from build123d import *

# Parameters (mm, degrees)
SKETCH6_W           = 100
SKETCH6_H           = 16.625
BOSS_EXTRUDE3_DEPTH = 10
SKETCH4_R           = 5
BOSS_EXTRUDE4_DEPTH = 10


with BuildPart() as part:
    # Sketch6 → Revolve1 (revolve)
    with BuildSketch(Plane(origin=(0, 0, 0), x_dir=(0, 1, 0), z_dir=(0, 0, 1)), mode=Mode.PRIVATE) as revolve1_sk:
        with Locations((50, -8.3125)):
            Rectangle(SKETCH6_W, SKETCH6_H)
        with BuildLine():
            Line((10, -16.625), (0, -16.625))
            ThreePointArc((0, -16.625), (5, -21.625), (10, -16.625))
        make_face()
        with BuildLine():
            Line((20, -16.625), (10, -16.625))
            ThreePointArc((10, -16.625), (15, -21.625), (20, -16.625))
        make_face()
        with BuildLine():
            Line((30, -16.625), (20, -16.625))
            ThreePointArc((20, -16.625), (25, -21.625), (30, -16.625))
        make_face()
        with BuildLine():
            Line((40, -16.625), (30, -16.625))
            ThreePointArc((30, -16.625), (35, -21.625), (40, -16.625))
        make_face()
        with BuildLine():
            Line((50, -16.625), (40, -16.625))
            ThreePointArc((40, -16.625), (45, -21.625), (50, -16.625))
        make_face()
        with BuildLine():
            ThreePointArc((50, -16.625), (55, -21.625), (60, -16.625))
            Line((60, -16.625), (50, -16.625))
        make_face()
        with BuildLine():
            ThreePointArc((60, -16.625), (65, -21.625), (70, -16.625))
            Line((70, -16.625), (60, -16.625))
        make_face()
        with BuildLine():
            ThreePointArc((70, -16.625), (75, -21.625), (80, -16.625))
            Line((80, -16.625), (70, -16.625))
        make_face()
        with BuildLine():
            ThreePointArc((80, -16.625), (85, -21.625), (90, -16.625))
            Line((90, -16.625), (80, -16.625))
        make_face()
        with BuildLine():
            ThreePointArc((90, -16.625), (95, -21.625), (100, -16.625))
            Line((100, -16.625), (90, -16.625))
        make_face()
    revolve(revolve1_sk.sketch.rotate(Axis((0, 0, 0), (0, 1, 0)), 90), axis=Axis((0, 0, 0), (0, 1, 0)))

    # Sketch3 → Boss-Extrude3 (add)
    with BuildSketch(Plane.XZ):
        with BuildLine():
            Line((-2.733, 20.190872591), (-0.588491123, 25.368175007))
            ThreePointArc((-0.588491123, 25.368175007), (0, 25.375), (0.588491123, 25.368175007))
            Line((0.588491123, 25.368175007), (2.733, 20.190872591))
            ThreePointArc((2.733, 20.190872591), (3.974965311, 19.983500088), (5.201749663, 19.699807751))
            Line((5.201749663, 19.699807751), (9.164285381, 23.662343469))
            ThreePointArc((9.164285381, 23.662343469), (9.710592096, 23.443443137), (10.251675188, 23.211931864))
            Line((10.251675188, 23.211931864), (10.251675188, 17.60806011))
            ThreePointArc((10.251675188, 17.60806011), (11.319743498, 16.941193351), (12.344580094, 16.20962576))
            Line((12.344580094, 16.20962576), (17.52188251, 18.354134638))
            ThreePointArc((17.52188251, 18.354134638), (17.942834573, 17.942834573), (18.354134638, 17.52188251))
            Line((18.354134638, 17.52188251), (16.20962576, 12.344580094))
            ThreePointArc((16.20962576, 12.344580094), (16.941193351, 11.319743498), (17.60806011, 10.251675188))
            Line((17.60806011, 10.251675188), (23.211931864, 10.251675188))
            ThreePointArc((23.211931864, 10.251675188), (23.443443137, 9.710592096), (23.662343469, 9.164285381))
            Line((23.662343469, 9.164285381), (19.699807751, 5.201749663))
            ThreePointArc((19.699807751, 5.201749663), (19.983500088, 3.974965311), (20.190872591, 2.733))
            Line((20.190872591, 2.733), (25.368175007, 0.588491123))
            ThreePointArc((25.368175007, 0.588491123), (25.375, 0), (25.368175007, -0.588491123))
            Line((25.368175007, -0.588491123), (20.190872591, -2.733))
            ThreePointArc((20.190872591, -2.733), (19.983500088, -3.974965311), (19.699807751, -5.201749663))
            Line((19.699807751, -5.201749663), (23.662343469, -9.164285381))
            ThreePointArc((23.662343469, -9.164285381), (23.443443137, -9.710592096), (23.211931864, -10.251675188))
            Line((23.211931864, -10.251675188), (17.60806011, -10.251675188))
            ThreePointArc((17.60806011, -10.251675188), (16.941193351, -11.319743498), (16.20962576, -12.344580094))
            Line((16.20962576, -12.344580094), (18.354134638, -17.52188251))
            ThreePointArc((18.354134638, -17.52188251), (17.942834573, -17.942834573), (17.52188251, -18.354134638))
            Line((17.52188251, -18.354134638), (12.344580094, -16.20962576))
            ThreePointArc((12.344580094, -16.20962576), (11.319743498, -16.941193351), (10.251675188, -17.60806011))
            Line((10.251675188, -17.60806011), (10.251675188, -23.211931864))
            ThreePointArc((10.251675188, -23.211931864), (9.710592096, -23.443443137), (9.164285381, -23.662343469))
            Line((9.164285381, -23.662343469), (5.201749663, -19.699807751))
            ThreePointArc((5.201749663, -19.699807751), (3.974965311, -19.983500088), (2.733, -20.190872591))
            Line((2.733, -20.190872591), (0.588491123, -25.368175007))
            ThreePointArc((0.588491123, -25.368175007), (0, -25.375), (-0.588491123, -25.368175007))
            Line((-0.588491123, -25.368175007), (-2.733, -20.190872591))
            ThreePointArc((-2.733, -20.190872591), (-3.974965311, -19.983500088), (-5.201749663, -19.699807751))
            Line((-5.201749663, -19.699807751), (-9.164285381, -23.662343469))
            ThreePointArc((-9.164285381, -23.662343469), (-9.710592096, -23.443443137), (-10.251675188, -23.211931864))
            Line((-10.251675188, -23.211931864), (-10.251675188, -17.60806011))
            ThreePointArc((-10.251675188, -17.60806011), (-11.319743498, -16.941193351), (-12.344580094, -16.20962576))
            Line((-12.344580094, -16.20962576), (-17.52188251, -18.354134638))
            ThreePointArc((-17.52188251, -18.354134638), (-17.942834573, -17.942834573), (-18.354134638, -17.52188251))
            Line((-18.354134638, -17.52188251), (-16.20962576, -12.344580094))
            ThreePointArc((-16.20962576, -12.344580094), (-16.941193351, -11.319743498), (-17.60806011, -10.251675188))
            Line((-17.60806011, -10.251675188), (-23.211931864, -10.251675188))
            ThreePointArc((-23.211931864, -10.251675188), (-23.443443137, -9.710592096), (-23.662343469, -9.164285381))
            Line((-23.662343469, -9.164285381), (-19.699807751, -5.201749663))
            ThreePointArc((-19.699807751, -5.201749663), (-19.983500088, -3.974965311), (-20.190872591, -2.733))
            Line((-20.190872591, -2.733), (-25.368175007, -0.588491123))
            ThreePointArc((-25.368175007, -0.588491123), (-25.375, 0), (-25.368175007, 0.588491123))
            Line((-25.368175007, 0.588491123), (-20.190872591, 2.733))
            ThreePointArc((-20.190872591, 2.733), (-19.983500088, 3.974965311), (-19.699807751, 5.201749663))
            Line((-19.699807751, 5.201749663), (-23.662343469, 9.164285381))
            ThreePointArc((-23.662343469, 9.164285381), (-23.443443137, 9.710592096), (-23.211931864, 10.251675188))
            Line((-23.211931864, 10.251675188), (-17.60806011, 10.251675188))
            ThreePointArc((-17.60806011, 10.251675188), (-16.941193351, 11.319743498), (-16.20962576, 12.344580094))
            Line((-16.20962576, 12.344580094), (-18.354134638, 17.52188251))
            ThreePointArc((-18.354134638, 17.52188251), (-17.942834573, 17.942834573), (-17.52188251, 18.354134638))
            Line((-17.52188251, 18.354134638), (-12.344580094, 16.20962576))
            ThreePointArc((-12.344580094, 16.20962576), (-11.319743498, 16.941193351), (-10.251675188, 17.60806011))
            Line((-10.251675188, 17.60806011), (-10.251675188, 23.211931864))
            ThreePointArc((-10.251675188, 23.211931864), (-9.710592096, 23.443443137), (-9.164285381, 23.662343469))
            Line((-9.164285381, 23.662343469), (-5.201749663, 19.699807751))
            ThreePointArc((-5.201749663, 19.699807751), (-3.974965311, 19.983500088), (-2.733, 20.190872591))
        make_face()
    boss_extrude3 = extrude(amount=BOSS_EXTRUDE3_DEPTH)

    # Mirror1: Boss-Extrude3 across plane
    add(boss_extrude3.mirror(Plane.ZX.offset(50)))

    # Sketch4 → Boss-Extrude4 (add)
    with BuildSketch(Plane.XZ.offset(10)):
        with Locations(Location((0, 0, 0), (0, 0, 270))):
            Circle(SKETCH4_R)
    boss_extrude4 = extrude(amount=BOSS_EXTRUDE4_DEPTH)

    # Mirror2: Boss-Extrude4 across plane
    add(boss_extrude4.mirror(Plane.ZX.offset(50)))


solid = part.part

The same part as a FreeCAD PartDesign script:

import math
import FreeCAD as App
import Part
import Sketcher
from FreeCAD import Vector
Q = App.Units.Quantity

doc = App.newDocument("Part")
body = doc.addObject("PartDesign::Body", "Body")

# Sketch on XY plane
sketch1 = doc.addObject("Sketcher::SketchObject", "Sketch")
body.addObject(sketch1)
sketch1.AttachmentSupport = (doc.XY_Plane, [""])
sketch1.MapMode = "FlatFace"
sketch1.addGeometry(Part.LineSegment(Vector(0, 0, 0), Vector(17, 0, 0)), False)
sketch1.addGeometry(Part.ArcOfCircle(Part.Circle(Vector(17, 5, 0), Vector(0, 0, 1), 5), math.radians(-90), math.radians(90)), False)
sketch1.addGeometry(Part.ArcOfCircle(Part.Circle(Vector(17, 15, 0), Vector(0, 0, 1), 5), math.radians(-90), math.radians(90)), False)
sketch1.addGeometry(Part.ArcOfCircle(Part.Circle(Vector(17, 25, 0), Vector(0, 0, 1), 5), math.radians(-90), math.radians(90)), False)
sketch1.addGeometry(Part.ArcOfCircle(Part.Circle(Vector(17, 35, 0), Vector(0, 0, 1), 5), math.radians(-90), math.radians(90)), False)
sketch1.addGeometry(Part.ArcOfCircle(Part.Circle(Vector(17, 45, 0), Vector(0, 0, 1), 5), math.radians(-90), math.radians(90)), False)
sketch1.addGeometry(Part.ArcOfCircle(Part.Circle(Vector(17, 55, 0), Vector(0, 0, 1), 5), math.radians(-90), math.radians(90)), False)
sketch1.addGeometry(Part.ArcOfCircle(Part.Circle(Vector(17, 65, 0), Vector(0, 0, 1), 5), math.radians(-90), math.radians(90)), False)
sketch1.addGeometry(Part.ArcOfCircle(Part.Circle(Vector(17, 75, 0), Vector(0, 0, 1), 5), math.radians(-90), math.radians(90)), False)
sketch1.addGeometry(Part.ArcOfCircle(Part.Circle(Vector(17, 85, 0), Vector(0, 0, 1), 5), math.radians(-90), math.radians(90)), False)
sketch1.addGeometry(Part.ArcOfCircle(Part.Circle(Vector(17, 95, 0), Vector(0, 0, 1), 5), math.radians(-90), math.radians(90)), False)
sketch1.addGeometry(Part.LineSegment(Vector(17, 100, 0), Vector(0, 100, 0)), False)
sketch1.addGeometry(Part.LineSegment(Vector(0, 100, 0), Vector(0, 0, 0)), False)
sketch1.addConstraint(Sketcher.Constraint("Tangent", 0, 2, 1, 1))
sketch1.addConstraint(Sketcher.Constraint("Tangent", 1, 2, 2, 1))
sketch1.addConstraint(Sketcher.Constraint("Tangent", 2, 2, 3, 1))
sketch1.addConstraint(Sketcher.Constraint("Tangent", 3, 2, 4, 1))
sketch1.addConstraint(Sketcher.Constraint("Tangent", 4, 2, 5, 1))
sketch1.addConstraint(Sketcher.Constraint("Tangent", 5, 2, 6, 1))
sketch1.addConstraint(Sketcher.Constraint("Tangent", 6, 2, 7, 1))
sketch1.addConstraint(Sketcher.Constraint("Tangent", 7, 2, 8, 1))
sketch1.addConstraint(Sketcher.Constraint("Tangent", 8, 2, 9, 1))
sketch1.addConstraint(Sketcher.Constraint("Tangent", 9, 2, 10, 1))
sketch1.addConstraint(Sketcher.Constraint("Tangent", 10, 2, 11, 1))
sketch1.addConstraint(Sketcher.Constraint("Coincident", 11, 2, 12, 1))
sketch1.addConstraint(Sketcher.Constraint("Coincident", 12, 2, 0, 1))
sketch1.addConstraint(Sketcher.Constraint("Horizontal", 0))
sketch1.addConstraint(Sketcher.Constraint("Horizontal", 11))
sketch1.addConstraint(Sketcher.Constraint("Vertical", 12))
sketch1.addConstraint(Sketcher.Constraint("Coincident", 12, 2, -1, 1))
sketch1.addConstraint(Sketcher.Constraint("Equal", 1, 2))
sketch1.addConstraint(Sketcher.Constraint("Equal", 2, 3))
sketch1.addConstraint(Sketcher.Constraint("Equal", 3, 4))
sketch1.addConstraint(Sketcher.Constraint("Equal", 4, 5))
sketch1.addConstraint(Sketcher.Constraint("Equal", 5, 6))
sketch1.addConstraint(Sketcher.Constraint("Equal", 6, 7))
sketch1.addConstraint(Sketcher.Constraint("Equal", 7, 8))
sketch1.addConstraint(Sketcher.Constraint("Equal", 8, 9))
sketch1.addConstraint(Sketcher.Constraint("Equal", 9, 10))
sketch1.addConstraint(Sketcher.Constraint("Vertical", 1, 3, 2, 3))
sketch1.addConstraint(Sketcher.Constraint("Vertical", 2, 3, 3, 3))
sketch1.addConstraint(Sketcher.Constraint("Vertical", 3, 3, 4, 3))
sketch1.addConstraint(Sketcher.Constraint("Vertical", 4, 3, 5, 3))
sketch1.addConstraint(Sketcher.Constraint("Vertical", 5, 3, 6, 3))
sketch1.addConstraint(Sketcher.Constraint("Vertical", 6, 3, 7, 3))
sketch1.addConstraint(Sketcher.Constraint("Vertical", 7, 3, 8, 3))
sketch1.addConstraint(Sketcher.Constraint("Vertical", 8, 3, 9, 3))
sketch1.addConstraint(Sketcher.Constraint("Vertical", 9, 3, 10, 3))
sketch1.addConstraint(Sketcher.Constraint("Radius", 1, Q("5 mm")))
sketch1.addConstraint(Sketcher.Constraint("DistanceX", 0, 1, 0, 2, Q("16.625 mm")))
revolution = doc.addObject("PartDesign::Revolution", "Revolution")
body.addObject(revolution)
revolution.Profile = sketch1
revolution.ReferenceAxis = (sketch1, ["V_Axis"])
revolution.Angle = 360

# Sketch on XZ plane
sketch2 = doc.addObject("Sketcher::SketchObject", "Sketch001")
body.addObject(sketch2)
sketch2.AttachmentSupport = (doc.XZ_Plane, [""])
sketch2.MapMode = "FlatFace"
sketch2.addGeometry(Part.LineSegment(Vector(-0.588491, 25.368175, 0), Vector(-2.733, 20.190873, 0)), False)
sketch2.addGeometry(Part.ArcOfCircle(Part.Circle(Vector(0, 0, 0), Vector(0, 0, 1), 20.375), math.radians(97.708602), math.radians(104.791398)), False)
sketch2.addGeometry(Part.LineSegment(Vector(-5.20175, 19.699808, 0), Vector(-9.164285, 23.662343, 0)), False)
sketch2.addGeometry(Part.ArcOfCircle(Part.Circle(Vector(0.000001, -0.000002, 0), Vector(0, 0, 1), 25.375002), math.radians(111.17109), math.radians(113.828909)), False)
sketch2.addGeometry(Part.LineSegment(Vector(-10.251675, 23.211932, 0), Vector(-10.251675, 17.60806, 0)), False)
sketch2.addGeometry(Part.ArcOfCircle(Part.Circle(Vector(0, 0, 0), Vector(0, 0, 1), 20.375), math.radians(120.208602), math.radians(127.291398)), False)
sketch2.addGeometry(Part.LineSegment(Vector(-12.34458, 16.209626, 0), Vector(-17.521883, 18.354135, 0)), False)
sketch2.addGeometry(Part.ArcOfCircle(Part.Circle(Vector(-0.000001, 0.000001, 0), Vector(0, 0, 1), 25.374998), math.radians(133.67109), math.radians(136.32891)), False)
sketch2.addGeometry(Part.LineSegment(Vector(-18.354135, 17.521883, 0), Vector(-16.209626, 12.34458, 0)), False)
sketch2.addGeometry(Part.ArcOfCircle(Part.Circle(Vector(0, 0, 0), Vector(0, 0, 1), 20.375), math.radians(142.708602), math.radians(149.791398)), False)
sketch2.addGeometry(Part.LineSegment(Vector(-17.60806, 10.251675, 0), Vector(-23.211932, 10.251675, 0)), False)
sketch2.addGeometry(Part.ArcOfCircle(Part.Circle(Vector(0.000002, -0.000001, 0), Vector(0, 0, 1), 25.375002), math.radians(156.171091), math.radians(158.82891)), False)
sketch2.addGeometry(Part.LineSegment(Vector(-23.662343, 9.164285, 0), Vector(-19.699808, 5.20175, 0)), False)
sketch2.addGeometry(Part.ArcOfCircle(Part.Circle(Vector(0, 0, 0), Vector(0, 0, 1), 20.375), math.radians(165.208602), math.radians(172.291398)), False)
sketch2.addGeometry(Part.LineSegment(Vector(-20.190873, 2.733, 0), Vector(-25.368175, 0.588491, 0)), False)
sketch2.addGeometry(Part.ArcOfCircle(Part.Circle(Vector(-0.000001, 0, 0), Vector(0, 0, 1), 25.374999), math.radians(178.67109), math.radians(181.32891)), False)
sketch2.addGeometry(Part.LineSegment(Vector(-25.368175, -0.588491, 0), Vector(-20.190873, -2.733, 0)), False)
sketch2.addGeometry(Part.ArcOfCircle(Part.Circle(Vector(0, 0, 0), Vector(0, 0, 1), 20.375), math.radians(-172.291398), math.radians(-165.208602)), False)
sketch2.addGeometry(Part.LineSegment(Vector(-19.699808, -5.20175, 0), Vector(-23.662343, -9.164285, 0)), False)
sketch2.addGeometry(Part.ArcOfCircle(Part.Circle(Vector(0.000002, 0.000001, 0), Vector(0, 0, 1), 25.375002), math.radians(-158.82891), math.radians(-156.171091)), False)
sketch2.addGeometry(Part.LineSegment(Vector(-23.211932, -10.251675, 0), Vector(-17.60806, -10.251675, 0)), False)
sketch2.addGeometry(Part.ArcOfCircle(Part.Circle(Vector(0, 0, 0), Vector(0, 0, 1), 20.375), math.radians(-149.791398), math.radians(-142.708602)), False)
sketch2.addGeometry(Part.LineSegment(Vector(-16.209626, -12.34458, 0), Vector(-18.354135, -17.521883, 0)), False)
sketch2.addGeometry(Part.ArcOfCircle(Part.Circle(Vector(-0.000001, -0.000001, 0), Vector(0, 0, 1), 25.374998), math.radians(-136.32891), math.radians(-133.67109)), False)
sketch2.addGeometry(Part.LineSegment(Vector(-17.521883, -18.354135, 0), Vector(-12.34458, -16.209626, 0)), False)
sketch2.addGeometry(Part.ArcOfCircle(Part.Circle(Vector(0, 0, 0), Vector(0, 0, 1), 20.375), math.radians(-127.291398), math.radians(-120.208602)), False)
sketch2.addGeometry(Part.LineSegment(Vector(-10.251675, -17.60806, 0), Vector(-10.251675, -23.211932, 0)), False)
sketch2.addGeometry(Part.ArcOfCircle(Part.Circle(Vector(0.000001, 0.000002, 0), Vector(0, 0, 1), 25.375002), math.radians(-113.828909), math.radians(-111.17109)), False)
sketch2.addGeometry(Part.LineSegment(Vector(-9.164285, -23.662343, 0), Vector(-5.20175, -19.699808, 0)), False)
sketch2.addGeometry(Part.ArcOfCircle(Part.Circle(Vector(0, 0, 0), Vector(0, 0, 1), 20.375), math.radians(-104.791398), math.radians(-97.708602)), False)
sketch2.addGeometry(Part.LineSegment(Vector(-2.733, -20.190873, 0), Vector(-0.588491, -25.368175, 0)), False)
sketch2.addGeometry(Part.ArcOfCircle(Part.Circle(Vector(0, -0.000001, 0), Vector(0, 0, 1), 25.374999), math.radians(-91.32891), math.radians(-88.67109)), False)
sketch2.addGeometry(Part.LineSegment(Vector(0.588491, -25.368175, 0), Vector(2.733, -20.190873, 0)), False)
sketch2.addGeometry(Part.ArcOfCircle(Part.Circle(Vector(0, 0, 0), Vector(0, 0, 1), 20.375), math.radians(-82.291398), math.radians(-75.208602)), False)
sketch2.addGeometry(Part.LineSegment(Vector(5.20175, -19.699808, 0), Vector(9.164285, -23.662343, 0)), False)
sketch2.addGeometry(Part.ArcOfCircle(Part.Circle(Vector(-0.000001, 0.000002, 0), Vector(0, 0, 1), 25.375002), math.radians(-68.82891), math.radians(-66.171091)), False)
sketch2.addGeometry(Part.LineSegment(Vector(10.251675, -23.211932, 0), Vector(10.251675, -17.60806, 0)), False)
sketch2.addGeometry(Part.ArcOfCircle(Part.Circle(Vector(0, 0, 0), Vector(0, 0, 1), 20.375), math.radians(-59.791398), math.radians(-52.708602)), False)
sketch2.addGeometry(Part.LineSegment(Vector(12.34458, -16.209626, 0), Vector(17.521883, -18.354135, 0)), False)
sketch2.addGeometry(Part.ArcOfCircle(Part.Circle(Vector(0.000001, -0.000001, 0), Vector(0, 0, 1), 25.374998), math.radians(-46.32891), math.radians(-43.67109)), False)
sketch2.addGeometry(Part.LineSegment(Vector(18.354135, -17.521883, 0), Vector(16.209626, -12.34458, 0)), False)
sketch2.addGeometry(Part.ArcOfCircle(Part.Circle(Vector(0, 0, 0), Vector(0, 0, 1), 20.375), math.radians(-37.291398), math.radians(-30.208602)), False)
sketch2.addGeometry(Part.LineSegment(Vector(17.60806, -10.251675, 0), Vector(23.211932, -10.251675, 0)), False)
sketch2.addGeometry(Part.ArcOfCircle(Part.Circle(Vector(-0.000002, 0.000001, 0), Vector(0, 0, 1), 25.375002), math.radians(-23.828909), math.radians(-21.17109)), False)
sketch2.addGeometry(Part.LineSegment(Vector(23.662343, -9.164285, 0), Vector(19.699808, -5.20175, 0)), False)
sketch2.addGeometry(Part.ArcOfCircle(Part.Circle(Vector(0, 0, 0), Vector(0, 0, 1), 20.375), math.radians(-14.791398), math.radians(-7.708602)), False)
sketch2.addGeometry(Part.LineSegment(Vector(20.190873, -2.733, 0), Vector(25.368175, -0.588491, 0)), False)
sketch2.addGeometry(Part.ArcOfCircle(Part.Circle(Vector(0.000001, 0, 0), Vector(0, 0, 1), 25.374999), math.radians(-1.32891), math.radians(1.32891)), False)
sketch2.addGeometry(Part.LineSegment(Vector(25.368175, 0.588491, 0), Vector(20.190873, 2.733, 0)), False)
sketch2.addGeometry(Part.ArcOfCircle(Part.Circle(Vector(0, 0, 0), Vector(0, 0, 1), 20.375), math.radians(7.708602), math.radians(14.791398)), False)
sketch2.addGeometry(Part.LineSegment(Vector(19.699808, 5.20175, 0), Vector(23.662343, 9.164285, 0)), False)
sketch2.addGeometry(Part.ArcOfCircle(Part.Circle(Vector(-0.000002, -0.000001, 0), Vector(0, 0, 1), 25.375002), math.radians(21.17109), math.radians(23.828909)), False)
sketch2.addGeometry(Part.LineSegment(Vector(23.211932, 10.251675, 0), Vector(17.60806, 10.251675, 0)), False)
sketch2.addGeometry(Part.ArcOfCircle(Part.Circle(Vector(0, 0, 0), Vector(0, 0, 1), 20.375), math.radians(30.208602), math.radians(37.291398)), False)
sketch2.addGeometry(Part.LineSegment(Vector(16.209626, 12.34458, 0), Vector(18.354135, 17.521883, 0)), False)
sketch2.addGeometry(Part.ArcOfCircle(Part.Circle(Vector(0.000001, 0.000001, 0), Vector(0, 0, 1), 25.374998), math.radians(43.67109), math.radians(46.32891)), False)
sketch2.addGeometry(Part.LineSegment(Vector(17.521883, 18.354135, 0), Vector(12.34458, 16.209626, 0)), False)
sketch2.addGeometry(Part.ArcOfCircle(Part.Circle(Vector(0, 0, 0), Vector(0, 0, 1), 20.375), math.radians(52.708602), math.radians(59.791398)), False)
sketch2.addGeometry(Part.LineSegment(Vector(10.251675, 17.60806, 0), Vector(10.251675, 23.211932, 0)), False)
sketch2.addGeometry(Part.ArcOfCircle(Part.Circle(Vector(-0.000001, -0.000002, 0), Vector(0, 0, 1), 25.375002), math.radians(66.171091), math.radians(68.82891)), False)
sketch2.addGeometry(Part.LineSegment(Vector(9.164285, 23.662343, 0), Vector(5.20175, 19.699808, 0)), False)
sketch2.addGeometry(Part.ArcOfCircle(Part.Circle(Vector(0, 0, 0), Vector(0, 0, 1), 20.375), math.radians(75.208602), math.radians(82.291398)), False)
sketch2.addGeometry(Part.LineSegment(Vector(2.733, 20.190873, 0), Vector(0.588491, 25.368175, 0)), False)
sketch2.addGeometry(Part.ArcOfCircle(Part.Circle(Vector(0, 0.000001, 0), Vector(0, 0, 1), 25.374999), math.radians(88.67109), math.radians(91.32891)), False)
sketch2.addConstraint(Sketcher.Constraint("Coincident", 0, 2, 1, 1))
sketch2.addConstraint(Sketcher.Constraint("Coincident", 1, 2, 2, 1))
sketch2.addConstraint(Sketcher.Constraint("Coincident", 2, 2, 3, 1))
sketch2.addConstraint(Sketcher.Constraint("Coincident", 3, 2, 4, 1))
sketch2.addConstraint(Sketcher.Constraint("Coincident", 4, 2, 5, 1))
sketch2.addConstraint(Sketcher.Constraint("Coincident", 5, 2, 6, 1))
sketch2.addConstraint(Sketcher.Constraint("Coincident", 6, 2, 7, 1))
sketch2.addConstraint(Sketcher.Constraint("Coincident", 7, 2, 8, 1))
sketch2.addConstraint(Sketcher.Constraint("Coincident", 8, 2, 9, 1))
sketch2.addConstraint(Sketcher.Constraint("Coincident", 9, 2, 10, 1))
sketch2.addConstraint(Sketcher.Constraint("Coincident", 10, 2, 11, 1))
sketch2.addConstraint(Sketcher.Constraint("Coincident", 11, 2, 12, 1))
sketch2.addConstraint(Sketcher.Constraint("Coincident", 12, 2, 13, 1))
sketch2.addConstraint(Sketcher.Constraint("Coincident", 13, 2, 14, 1))
sketch2.addConstraint(Sketcher.Constraint("Coincident", 14, 2, 15, 1))
sketch2.addConstraint(Sketcher.Constraint("Coincident", 15, 2, 16, 1))
sketch2.addConstraint(Sketcher.Constraint("Coincident", 16, 2, 17, 1))
sketch2.addConstraint(Sketcher.Constraint("Coincident", 17, 2, 18, 1))
sketch2.addConstraint(Sketcher.Constraint("Coincident", 18, 2, 19, 1))
sketch2.addConstraint(Sketcher.Constraint("Coincident", 19, 2, 20, 1))
sketch2.addConstraint(Sketcher.Constraint("Coincident", 20, 2, 21, 1))
sketch2.addConstraint(Sketcher.Constraint("Coincident", 21, 2, 22, 1))
sketch2.addConstraint(Sketcher.Constraint("Coincident", 22, 2, 23, 1))
sketch2.addConstraint(Sketcher.Constraint("Coincident", 23, 2, 24, 1))
sketch2.addConstraint(Sketcher.Constraint("Coincident", 24, 2, 25, 1))
sketch2.addConstraint(Sketcher.Constraint("Coincident", 25, 2, 26, 1))
sketch2.addConstraint(Sketcher.Constraint("Coincident", 26, 2, 27, 1))
sketch2.addConstraint(Sketcher.Constraint("Coincident", 27, 2, 28, 1))
sketch2.addConstraint(Sketcher.Constraint("Coincident", 28, 2, 29, 1))
sketch2.addConstraint(Sketcher.Constraint("Coincident", 29, 2, 30, 1))
sketch2.addConstraint(Sketcher.Constraint("Coincident", 30, 2, 31, 1))
sketch2.addConstraint(Sketcher.Constraint("Coincident", 31, 2, 32, 1))
sketch2.addConstraint(Sketcher.Constraint("Coincident", 32, 2, 33, 1))
sketch2.addConstraint(Sketcher.Constraint("Coincident", 33, 2, 34, 1))
sketch2.addConstraint(Sketcher.Constraint("Coincident", 34, 2, 35, 1))
sketch2.addConstraint(Sketcher.Constraint("Coincident", 35, 2, 36, 1))
sketch2.addConstraint(Sketcher.Constraint("Coincident", 36, 2, 37, 1))
sketch2.addConstraint(Sketcher.Constraint("Coincident", 37, 2, 38, 1))
sketch2.addConstraint(Sketcher.Constraint("Coincident", 38, 2, 39, 1))
sketch2.addConstraint(Sketcher.Constraint("Coincident", 39, 2, 40, 1))
sketch2.addConstraint(Sketcher.Constraint("Coincident", 40, 2, 41, 1))
sketch2.addConstraint(Sketcher.Constraint("Coincident", 41, 2, 42, 1))
sketch2.addConstraint(Sketcher.Constraint("Coincident", 42, 2, 43, 1))
sketch2.addConstraint(Sketcher.Constraint("Coincident", 43, 2, 44, 1))
sketch2.addConstraint(Sketcher.Constraint("Coincident", 44, 2, 45, 1))
sketch2.addConstraint(Sketcher.Constraint("Coincident", 45, 2, 46, 1))
sketch2.addConstraint(Sketcher.Constraint("Coincident", 46, 2, 47, 1))
sketch2.addConstraint(Sketcher.Constraint("Coincident", 47, 2, 48, 1))
sketch2.addConstraint(Sketcher.Constraint("Coincident", 48, 2, 49, 1))
sketch2.addConstraint(Sketcher.Constraint("Coincident", 49, 2, 50, 1))
sketch2.addConstraint(Sketcher.Constraint("Coincident", 50, 2, 51, 1))
sketch2.addConstraint(Sketcher.Constraint("Coincident", 51, 2, 52, 1))
sketch2.addConstraint(Sketcher.Constraint("Coincident", 52, 2, 53, 1))
sketch2.addConstraint(Sketcher.Constraint("Coincident", 53, 2, 54, 1))
sketch2.addConstraint(Sketcher.Constraint("Coincident", 54, 2, 55, 1))
sketch2.addConstraint(Sketcher.Constraint("Coincident", 55, 2, 56, 1))
sketch2.addConstraint(Sketcher.Constraint("Coincident", 56, 2, 57, 1))
sketch2.addConstraint(Sketcher.Constraint("Coincident", 57, 2, 58, 1))
sketch2.addConstraint(Sketcher.Constraint("Coincident", 58, 2, 59, 1))
sketch2.addConstraint(Sketcher.Constraint("Coincident", 59, 2, 60, 1))
sketch2.addConstraint(Sketcher.Constraint("Coincident", 60, 2, 61, 1))
sketch2.addConstraint(Sketcher.Constraint("Coincident", 61, 2, 62, 1))
sketch2.addConstraint(Sketcher.Constraint("Coincident", 62, 2, 63, 1))
sketch2.addConstraint(Sketcher.Constraint("Coincident", 63, 2, 0, 1))
sketch2.addConstraint(Sketcher.Constraint("Vertical", 4))
sketch2.addConstraint(Sketcher.Constraint("Horizontal", 10))
sketch2.addConstraint(Sketcher.Constraint("Horizontal", 20))
sketch2.addConstraint(Sketcher.Constraint("Vertical", 26))
sketch2.addConstraint(Sketcher.Constraint("Vertical", 36))
sketch2.addConstraint(Sketcher.Constraint("Horizontal", 42))
sketch2.addConstraint(Sketcher.Constraint("Horizontal", 52))
sketch2.addConstraint(Sketcher.Constraint("Vertical", 58))
sketch2.addConstraint(Sketcher.Constraint("Coincident", 1, 3, -1, 1))
sketch2.addConstraint(Sketcher.Constraint("Coincident", 3, 3, -1, 1))
sketch2.addConstraint(Sketcher.Constraint("Coincident", 5, 3, -1, 1))
sketch2.addConstraint(Sketcher.Constraint("Coincident", 7, 3, -1, 1))
sketch2.addConstraint(Sketcher.Constraint("Coincident", 9, 3, -1, 1))
sketch2.addConstraint(Sketcher.Constraint("Coincident", 11, 3, -1, 1))
sketch2.addConstraint(Sketcher.Constraint("Coincident", 13, 3, -1, 1))
sketch2.addConstraint(Sketcher.Constraint("Coincident", 15, 3, -1, 1))
sketch2.addConstraint(Sketcher.Constraint("Coincident", 17, 3, -1, 1))
sketch2.addConstraint(Sketcher.Constraint("Coincident", 19, 3, -1, 1))
sketch2.addConstraint(Sketcher.Constraint("Coincident", 21, 3, -1, 1))
sketch2.addConstraint(Sketcher.Constraint("Coincident", 23, 3, -1, 1))
sketch2.addConstraint(Sketcher.Constraint("Coincident", 25, 3, -1, 1))
sketch2.addConstraint(Sketcher.Constraint("Coincident", 27, 3, -1, 1))
sketch2.addConstraint(Sketcher.Constraint("Coincident", 29, 3, -1, 1))
sketch2.addConstraint(Sketcher.Constraint("Coincident", 31, 3, -1, 1))
sketch2.addConstraint(Sketcher.Constraint("Coincident", 33, 3, -1, 1))
sketch2.addConstraint(Sketcher.Constraint("Coincident", 35, 3, -1, 1))
sketch2.addConstraint(Sketcher.Constraint("Coincident", 37, 3, -1, 1))
sketch2.addConstraint(Sketcher.Constraint("Coincident", 39, 3, -1, 1))
sketch2.addConstraint(Sketcher.Constraint("Coincident", 41, 3, -1, 1))
sketch2.addConstraint(Sketcher.Constraint("Coincident", 43, 3, -1, 1))
sketch2.addConstraint(Sketcher.Constraint("Coincident", 45, 3, -1, 1))
sketch2.addConstraint(Sketcher.Constraint("Coincident", 47, 3, -1, 1))
sketch2.addConstraint(Sketcher.Constraint("Coincident", 49, 3, -1, 1))
sketch2.addConstraint(Sketcher.Constraint("Coincident", 51, 3, -1, 1))
sketch2.addConstraint(Sketcher.Constraint("Coincident", 53, 3, -1, 1))
sketch2.addConstraint(Sketcher.Constraint("Coincident", 55, 3, -1, 1))
sketch2.addConstraint(Sketcher.Constraint("Coincident", 57, 3, -1, 1))
sketch2.addConstraint(Sketcher.Constraint("Coincident", 59, 3, -1, 1))
sketch2.addConstraint(Sketcher.Constraint("Coincident", 61, 3, -1, 1))
sketch2.addConstraint(Sketcher.Constraint("Coincident", 63, 3, -1, 1))
sketch2.addConstraint(Sketcher.Constraint("Radius", 1, Q("20.375 mm")))
sketch2.addConstraint(Sketcher.Constraint("Radius", 5, Q("20.375 mm")))
sketch2.addConstraint(Sketcher.Constraint("Radius", 7, Q("25.374998 mm")))
sketch2.addConstraint(Sketcher.Constraint("Radius", 9, Q("20.375 mm")))
sketch2.addConstraint(Sketcher.Constraint("Radius", 13, Q("20.375 mm")))
sketch2.addConstraint(Sketcher.Constraint("Radius", 15, Q("25.374999 mm")))
sketch2.addConstraint(Sketcher.Constraint("Radius", 17, Q("20.375 mm")))
sketch2.addConstraint(Sketcher.Constraint("Radius", 21, Q("20.375 mm")))
sketch2.addConstraint(Sketcher.Constraint("Radius", 23, Q("25.374998 mm")))
sketch2.addConstraint(Sketcher.Constraint("Radius", 25, Q("20.375 mm")))
sketch2.addConstraint(Sketcher.Constraint("Radius", 29, Q("20.375 mm")))
sketch2.addConstraint(Sketcher.Constraint("Radius", 31, Q("25.374999 mm")))
sketch2.addConstraint(Sketcher.Constraint("Radius", 33, Q("20.375 mm")))
sketch2.addConstraint(Sketcher.Constraint("Radius", 37, Q("20.375 mm")))
sketch2.addConstraint(Sketcher.Constraint("Radius", 39, Q("25.374998 mm")))
sketch2.addConstraint(Sketcher.Constraint("Radius", 41, Q("20.375 mm")))
sketch2.addConstraint(Sketcher.Constraint("Radius", 45, Q("20.375 mm")))
sketch2.addConstraint(Sketcher.Constraint("Radius", 47, Q("25.374999 mm")))
sketch2.addConstraint(Sketcher.Constraint("Radius", 49, Q("20.375 mm")))
sketch2.addConstraint(Sketcher.Constraint("Radius", 53, Q("20.375 mm")))
sketch2.addConstraint(Sketcher.Constraint("Radius", 55, Q("25.374998 mm")))
sketch2.addConstraint(Sketcher.Constraint("Radius", 57, Q("20.375 mm")))
sketch2.addConstraint(Sketcher.Constraint("Radius", 61, Q("20.375 mm")))
sketch2.addConstraint(Sketcher.Constraint("Radius", 63, Q("25.374999 mm")))
sketch2.addConstraint(Sketcher.Constraint("DistanceX", 0, 2, -1, 1, Q("2.733 mm")))
sketch2.addConstraint(Sketcher.Constraint("DistanceY", -1, 1, 13, 2, Q("2.733 mm")))
sketch2.addConstraint(Sketcher.Constraint("DistanceY", 16, 2, -1, 1, Q("2.733 mm")))
sketch2.addConstraint(Sketcher.Constraint("DistanceX", 29, 2, -1, 1, Q("2.733 mm")))
sketch2.addConstraint(Sketcher.Constraint("DistanceX", -1, 1, 32, 2, Q("2.733 mm")))
sketch2.addConstraint(Sketcher.Constraint("DistanceY", 45, 2, -1, 1, Q("2.733 mm")))
sketch2.addConstraint(Sketcher.Constraint("DistanceY", -1, 1, 48, 2, Q("2.733 mm")))
sketch2.addConstraint(Sketcher.Constraint("DistanceX", -1, 1, 61, 2, Q("2.733 mm")))
sketch2.addConstraint(Sketcher.Constraint("Radius", 3, Q("25.375002 mm")))
sketch2.addConstraint(Sketcher.Constraint("Radius", 11, Q("25.375002 mm")))
sketch2.addConstraint(Sketcher.Constraint("Radius", 19, Q("25.375002 mm")))
sketch2.addConstraint(Sketcher.Constraint("Radius", 27, Q("25.375002 mm")))
sketch2.addConstraint(Sketcher.Constraint("Radius", 35, Q("25.375002 mm")))
sketch2.addConstraint(Sketcher.Constraint("Radius", 43, Q("25.375002 mm")))
sketch2.addConstraint(Sketcher.Constraint("Radius", 51, Q("25.375002 mm")))
sketch2.addConstraint(Sketcher.Constraint("Radius", 59, Q("25.375002 mm")))
sketch2.addConstraint(Sketcher.Constraint("DistanceX", 10, 2, 10, 1, Q("5.603872 mm")))
sketch2.addConstraint(Sketcher.Constraint("DistanceX", 20, 1, 20, 2, Q("5.603872 mm")))
sketch2.addConstraint(Sketcher.Constraint("DistanceX", 42, 1, 42, 2, Q("5.603872 mm")))
sketch2.addConstraint(Sketcher.Constraint("DistanceX", 52, 2, 52, 1, Q("5.603872 mm")))
sketch2.addConstraint(Sketcher.Constraint("DistanceY", 4, 2, 4, 1, Q("5.603872 mm")))
sketch2.addConstraint(Sketcher.Constraint("DistanceY", 26, 2, 26, 1, Q("5.603872 mm")))
sketch2.addConstraint(Sketcher.Constraint("DistanceY", 36, 1, 36, 2, Q("5.603872 mm")))
sketch2.addConstraint(Sketcher.Constraint("DistanceY", 58, 1, 58, 2, Q("5.603872 mm")))
sketch2.addConstraint(Sketcher.Constraint("Distance", 0, Q("5.603872 mm")))
sketch2.addConstraint(Sketcher.Constraint("Distance", 2, Q("5.603872 mm")))
sketch2.addConstraint(Sketcher.Constraint("Distance", 6, Q("5.603872 mm")))
sketch2.addConstraint(Sketcher.Constraint("Distance", 8, Q("5.603872 mm")))
sketch2.addConstraint(Sketcher.Constraint("Distance", 12, Q("5.603872 mm")))
sketch2.addConstraint(Sketcher.Constraint("Distance", 14, Q("5.603872 mm")))
sketch2.addConstraint(Sketcher.Constraint("Distance", 16, Q("5.603872 mm")))
sketch2.addConstraint(Sketcher.Constraint("Distance", 18, Q("5.603872 mm")))
sketch2.addConstraint(Sketcher.Constraint("Distance", 22, Q("5.603872 mm")))
sketch2.addConstraint(Sketcher.Constraint("Distance", 24, Q("5.603872 mm")))
sketch2.addConstraint(Sketcher.Constraint("Distance", 28, Q("5.603872 mm")))
sketch2.addConstraint(Sketcher.Constraint("Distance", 30, Q("5.603872 mm")))
sketch2.addConstraint(Sketcher.Constraint("Distance", 32, Q("5.603872 mm")))
sketch2.addConstraint(Sketcher.Constraint("Distance", 34, Q("5.603872 mm")))
sketch2.addConstraint(Sketcher.Constraint("Distance", 38, Q("5.603872 mm")))
sketch2.addConstraint(Sketcher.Constraint("Distance", 40, Q("5.603872 mm")))
sketch2.addConstraint(Sketcher.Constraint("Distance", 44, Q("5.603872 mm")))
sketch2.addConstraint(Sketcher.Constraint("Distance", 46, Q("5.603872 mm")))
sketch2.addConstraint(Sketcher.Constraint("Distance", 48, Q("5.603872 mm")))
sketch2.addConstraint(Sketcher.Constraint("Distance", 50, Q("5.603872 mm")))
sketch2.addConstraint(Sketcher.Constraint("Distance", 54, Q("5.603872 mm")))
sketch2.addConstraint(Sketcher.Constraint("Distance", 56, Q("5.603872 mm")))
sketch2.addConstraint(Sketcher.Constraint("Distance", 60, Q("5.603872 mm")))
sketch2.addConstraint(Sketcher.Constraint("Distance", 62, Q("5.603872 mm")))
sketch2.addConstraint(Sketcher.Constraint("DistanceX", 1, 2, -1, 1, Q("5.20175 mm")))
sketch2.addConstraint(Sketcher.Constraint("DistanceX", 5, 2, -1, 1, Q("12.34458 mm")))
sketch2.addConstraint(Sketcher.Constraint("DistanceY", -1, 1, 8, 2, Q("12.34458 mm")))
sketch2.addConstraint(Sketcher.Constraint("DistanceY", -1, 1, 12, 2, Q("5.20175 mm")))
sketch2.addConstraint(Sketcher.Constraint("DistanceY", 17, 2, -1, 1, Q("5.20175 mm")))
sketch2.addConstraint(Sketcher.Constraint("DistanceY", 21, 2, -1, 1, Q("12.34458 mm")))
sketch2.addConstraint(Sketcher.Constraint("DistanceX", 24, 2, -1, 1, Q("12.34458 mm")))
sketch2.addConstraint(Sketcher.Constraint("DistanceX", 28, 2, -1, 1, Q("5.20175 mm")))
sketch2.addConstraint(Sketcher.Constraint("DistanceX", -1, 1, 33, 2, Q("5.20175 mm")))
sketch2.addConstraint(Sketcher.Constraint("DistanceX", -1, 1, 37, 2, Q("12.34458 mm")))
sketch2.addConstraint(Sketcher.Constraint("DistanceY", 40, 2, -1, 1, Q("12.34458 mm")))
sketch2.addConstraint(Sketcher.Constraint("DistanceY", 44, 2, -1, 1, Q("5.20175 mm")))
sketch2.addConstraint(Sketcher.Constraint("DistanceY", -1, 1, 49, 2, Q("5.20175 mm")))
sketch2.addConstraint(Sketcher.Constraint("DistanceY", -1, 1, 53, 2, Q("12.34458 mm")))
sketch2.addConstraint(Sketcher.Constraint("DistanceX", -1, 1, 56, 2, Q("12.34458 mm")))
sketch2.addConstraint(Sketcher.Constraint("DistanceX", -1, 1, 60, 2, Q("5.20175 mm")))
pad1 = doc.addObject("PartDesign::Pad", "Pad")
body.addObject(pad1)
pad1.Profile = sketch2
pad1.Length = 10
doc.recompute()

datumplane = doc.addObject("PartDesign::Plane", "DatumPlane")
body.addObject(datumplane)
datumplane.AttachmentSupport = (doc.XZ_Plane, [""])
datumplane.MapMode = "FlatFace"
datumplane.AttachmentOffset = App.Placement(Vector(0, 0, -50), App.Rotation())
mirrored = doc.addObject("PartDesign::Mirrored", "Mirrored")
body.addObject(mirrored)
mirrored.Originals = [pad1]
mirrored.MirrorPlane = (datumplane, [""])
body.Tip = mirrored

# Sketch on XZ plane
sketch3 = doc.addObject("Sketcher::SketchObject", "Sketch002")
body.addObject(sketch3)
sketch3.AttachmentSupport = (doc.XZ_Plane, [""])
sketch3.MapMode = "FlatFace"
sketch3.AttachmentOffset = App.Placement(Vector(0, 0, 10), App.Rotation())
sketch3.addGeometry(Part.Circle(Vector(0, 0, 0), Vector(0, 0, 1), 5), False)
sketch3.addConstraint(Sketcher.Constraint("Coincident", 0, 3, -1, 1))
sketch3.addConstraint(Sketcher.Constraint("Diameter", 0, Q("10 mm")))
pad2 = doc.addObject("PartDesign::Pad", "Pad001")
body.addObject(pad2)
pad2.Profile = sketch3
pad2.Length = 10
doc.recompute()

datumplane2 = doc.addObject("PartDesign::Plane", "DatumPlane001")
body.addObject(datumplane2)
datumplane2.AttachmentSupport = (doc.XZ_Plane, [""])
datumplane2.MapMode = "FlatFace"
datumplane2.AttachmentOffset = App.Placement(Vector(0, 0, -50), App.Rotation())
mirrored2 = doc.addObject("PartDesign::Mirrored", "Mirrored001")
body.addObject(mirrored2)
mirrored2.Originals = [pad2]
mirrored2.MirrorPlane = (datumplane2, [""])
body.Tip = mirrored2

doc.recompute()
